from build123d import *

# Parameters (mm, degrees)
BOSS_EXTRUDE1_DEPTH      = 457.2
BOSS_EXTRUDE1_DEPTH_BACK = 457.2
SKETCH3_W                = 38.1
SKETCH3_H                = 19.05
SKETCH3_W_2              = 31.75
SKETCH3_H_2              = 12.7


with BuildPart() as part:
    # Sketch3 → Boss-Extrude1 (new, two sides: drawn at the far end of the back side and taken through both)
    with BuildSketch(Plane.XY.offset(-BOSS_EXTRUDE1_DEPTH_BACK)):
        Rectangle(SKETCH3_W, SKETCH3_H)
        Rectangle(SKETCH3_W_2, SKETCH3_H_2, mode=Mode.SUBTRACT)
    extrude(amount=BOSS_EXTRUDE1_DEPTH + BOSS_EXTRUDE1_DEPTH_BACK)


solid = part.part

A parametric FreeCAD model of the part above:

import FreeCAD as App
import Part
import Sketcher
from FreeCAD import Vector
Q = App.Units.Quantity

doc = App.newDocument("Part")
body = doc.addObject("PartDesign::Body", "Body")

# Sketch on XY plane
sketch1 = body.newObject("Sketcher::SketchObject", "Sketch")
sketch1.AttachmentSupport = (doc.getObject("XY_Plane"), [""])
sketch1.MapMode = "FlatFace"
sketch1.addGeometry([
    Part.LineSegment(Vector(-19, 10, 0), Vector(-19, -10, 0)),  # 0
    Part.LineSegment(Vector(-19, -10, 0), Vector(19, -10, 0)),  # 1
    Part.LineSegment(Vector(19, -10, 0), Vector(19, 10, 0)),  # 2
    Part.LineSegment(Vector(19, 10, 0), Vector(-19, 10, 0)),  # 3
    Part.LineSegment(Vector(16, -6, 0), Vector(-16, -6, 0)),  # 4
    Part.LineSegment(Vector(-16, -6, 0), Vector(-16, 6, 0)),  # 5
    Part.LineSegment(Vector(-16, 6, 0), Vector(16, 6, 0)),  # 6
    Part.LineSegment(Vector(16, 6, 0), Vector(16, -6, 0)),  # 7
], False)
sketch1.addConstraint([
    Sketcher.Constraint("Coincident", 0, 2, 1, 1),
    Sketcher.Constraint("Coincident", 1, 2, 2, 1),
    Sketcher.Constraint("Coincident", 2, 2, 3, 1),
    Sketcher.Constraint("Coincident", 3, 2, 0, 1),
    Sketcher.Constraint("Coincident", 4, 2, 5, 1),
    Sketcher.Constraint("Coincident", 5, 2, 6, 1),
    Sketcher.Constraint("Coincident", 6, 2, 7, 1),
    Sketcher.Constraint("Coincident", 7, 2, 4, 1),
    Sketcher.Constraint("Vertical", 0),
    Sketcher.Constraint("Horizontal", 1),
    Sketcher.Constraint("Vertical", 2),
    Sketcher.Constraint("Horizontal", 3),
    Sketcher.Constraint("Horizontal", 4),
    Sketcher.Constraint("Vertical", 5),
    Sketcher.Constraint("Horizontal", 6),
    Sketcher.Constraint("Vertical", 7),
    Sketcher.Constraint("Symmetric", 0, 2, 2, 2, -1, 1),
    Sketcher.Constraint("Symmetric", 4, 2, 6, 2, -1, 1),
    Sketcher.Constraint("DistanceX", 1, 1, 1, 2, Q("1.5 in")),
    Sketcher.Constraint("DistanceY", 5, 1, 5, 2, Q("0.5 in")),
    Sketcher.Constraint("DistanceX", 4, 2, 4, 1, Q("1.25 in")),
    Sketcher.Constraint("DistanceY", 0, 2, 0, 1, Q("0.75 in")),
])
pad1 = body.newObject("PartDesign::Pad", "Pad")
pad1.Profile = sketch1
pad1.Type = "TwoLengths"
pad1.Length = Q("18 in")
pad1.Length2 = Q("18 in")

doc.recompute()
